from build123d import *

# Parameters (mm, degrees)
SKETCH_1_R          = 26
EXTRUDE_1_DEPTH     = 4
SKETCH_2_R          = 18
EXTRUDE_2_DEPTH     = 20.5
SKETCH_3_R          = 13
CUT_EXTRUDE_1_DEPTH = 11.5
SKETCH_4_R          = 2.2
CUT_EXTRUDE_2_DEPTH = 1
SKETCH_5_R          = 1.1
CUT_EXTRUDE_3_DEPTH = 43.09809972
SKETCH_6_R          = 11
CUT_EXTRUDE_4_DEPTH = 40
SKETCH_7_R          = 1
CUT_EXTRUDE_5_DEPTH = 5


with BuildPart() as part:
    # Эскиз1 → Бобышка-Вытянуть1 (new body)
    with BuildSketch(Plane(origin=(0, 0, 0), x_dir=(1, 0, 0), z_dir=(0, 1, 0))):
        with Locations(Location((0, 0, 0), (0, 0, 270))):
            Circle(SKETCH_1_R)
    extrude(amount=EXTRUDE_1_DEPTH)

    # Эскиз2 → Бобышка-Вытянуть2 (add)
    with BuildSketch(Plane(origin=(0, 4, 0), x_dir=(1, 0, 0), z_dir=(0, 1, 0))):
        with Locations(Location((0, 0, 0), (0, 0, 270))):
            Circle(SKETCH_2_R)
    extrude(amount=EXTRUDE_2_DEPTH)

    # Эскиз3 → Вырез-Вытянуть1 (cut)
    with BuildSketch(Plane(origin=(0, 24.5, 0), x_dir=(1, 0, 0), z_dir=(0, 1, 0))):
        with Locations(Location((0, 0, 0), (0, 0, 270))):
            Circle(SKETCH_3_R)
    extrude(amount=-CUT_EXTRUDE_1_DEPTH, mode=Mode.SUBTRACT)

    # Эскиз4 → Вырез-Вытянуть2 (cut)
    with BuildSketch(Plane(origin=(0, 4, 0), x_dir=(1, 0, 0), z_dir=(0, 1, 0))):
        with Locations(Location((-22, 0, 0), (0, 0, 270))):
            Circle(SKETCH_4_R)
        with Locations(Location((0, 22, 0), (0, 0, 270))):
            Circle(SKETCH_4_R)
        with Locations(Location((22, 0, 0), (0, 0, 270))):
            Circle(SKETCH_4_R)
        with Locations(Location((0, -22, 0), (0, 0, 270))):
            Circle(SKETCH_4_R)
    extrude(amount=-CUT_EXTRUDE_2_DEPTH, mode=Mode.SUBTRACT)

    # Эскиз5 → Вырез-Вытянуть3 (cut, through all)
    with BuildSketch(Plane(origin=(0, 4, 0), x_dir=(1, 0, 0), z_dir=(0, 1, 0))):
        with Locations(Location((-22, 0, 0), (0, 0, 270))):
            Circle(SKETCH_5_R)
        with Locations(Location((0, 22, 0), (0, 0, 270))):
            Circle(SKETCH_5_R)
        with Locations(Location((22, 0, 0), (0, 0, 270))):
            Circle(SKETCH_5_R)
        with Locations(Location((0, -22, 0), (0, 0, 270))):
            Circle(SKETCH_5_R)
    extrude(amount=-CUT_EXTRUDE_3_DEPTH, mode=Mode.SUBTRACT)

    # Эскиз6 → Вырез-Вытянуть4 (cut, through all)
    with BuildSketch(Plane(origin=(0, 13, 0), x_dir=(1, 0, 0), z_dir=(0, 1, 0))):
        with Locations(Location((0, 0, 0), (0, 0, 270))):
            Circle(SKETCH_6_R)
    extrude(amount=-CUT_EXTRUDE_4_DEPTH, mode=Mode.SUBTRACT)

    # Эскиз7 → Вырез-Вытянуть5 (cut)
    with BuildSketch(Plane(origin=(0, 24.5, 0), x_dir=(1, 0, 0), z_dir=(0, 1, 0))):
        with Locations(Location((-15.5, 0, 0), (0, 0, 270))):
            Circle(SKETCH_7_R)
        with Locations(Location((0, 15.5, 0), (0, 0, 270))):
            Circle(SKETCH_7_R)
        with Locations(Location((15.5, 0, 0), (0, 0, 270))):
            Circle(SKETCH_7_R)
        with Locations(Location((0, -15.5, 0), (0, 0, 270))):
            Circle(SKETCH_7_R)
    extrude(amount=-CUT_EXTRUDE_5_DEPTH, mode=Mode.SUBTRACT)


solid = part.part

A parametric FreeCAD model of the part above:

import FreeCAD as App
import Part
import Sketcher
from FreeCAD import Vector

doc = App.newDocument("Part")
body = doc.addObject("PartDesign::Body", "Body")

sketch1 = body.newObject("Sketcher::SketchObject", "Sketch")
sketch1.AttachmentSupport = (doc.getObject("XZ_Plane"), [""])
sketch1.MapMode = "FlatFace"
sketch1.addGeometry(Part.Circle(Vector(0, 0, 0), Vector(0, 0, 1), 26), False)
sketch1.addConstraint(Sketcher.Constraint("Coincident", 0, 3, -1, 1))
sketch1.addConstraint(Sketcher.Constraint("Diameter", 0, 52.0))
pad1 = body.newObject("PartDesign::Pad", "Pad")
pad1.Profile = sketch1
pad1.Length = 4
pad1.Reversed = True

sketch2 = body.newObject("Sketcher::SketchObject", "Sketch001")
sketch2.AttachmentSupport = (doc.getObject("XZ_Plane"), [""])
sketch2.MapMode = "FlatFace"
sketch2.AttachmentOffset = App.Placement(Vector(0, 0, -4), App.Rotation())
sketch2.addGeometry(Part.Circle(Vector(0, 0, 0), Vector(0, 0, 1), 18), False)
sketch2.addConstraint(Sketcher.Constraint("Coincident", 0, 3, -1, 1))
sketch2.addConstraint(Sketcher.Constraint("Diameter", 0, 36.0))
pad2 = body.newObject("PartDesign::Pad", "Pad001")
pad2.Profile = sketch2
pad2.Length = 20.5
pad2.Reversed = True

sketch3 = body.newObject("Sketcher::SketchObject", "Sketch002")
sketch3.AttachmentSupport = (doc.getObject("XZ_Plane"), [""])
sketch3.MapMode = "FlatFace"
sketch3.AttachmentOffset = App.Placement(Vector(0, 0, -24.5), App.Rotation())
sketch3.addGeometry(Part.Circle(Vector(0, 0, 0), Vector(0, 0, 1), 13), False)
sketch3.addConstraint(Sketcher.Constraint("Coincident", 0, 3, -1, 1))
sketch3.addConstraint(Sketcher.Constraint("Diameter", 0, 26.0))
pocket1 = body.newObject("PartDesign::Pocket", "Pocket")
pocket1.Profile = sketch3
pocket1.Length = 11.5
pocket1.Reversed = True

sketch4 = body.newObject("Sketcher::SketchObject", "Sketch003")
sketch4.AttachmentSupport = (doc.getObject("XZ_Plane"), [""])
sketch4.MapMode = "FlatFace"
sketch4.AttachmentOffset = App.Placement(Vector(0, 0, -4), App.Rotation())
sketch4.addGeometry(Part.Circle(Vector(-22, 0, 0), Vector(0, 0, 1), 2.2), False)
sketch4.addGeometry(Part.Circle(Vector(0, -22, 0), Vector(0, 0, 1), 2.2), False)
sketch4.addGeometry(Part.Circle(Vector(22, 0, 0), Vector(0, 0, 1), 2.2), False)
sketch4.addGeometry(Part.Circle(Vector(0, 22, 0), Vector(0, 0, 1), 2.2), False)
sketch4.addConstraint(Sketcher.Constraint("Equal", 0, 1))
sketch4.addConstraint(Sketcher.Constraint("Equal", 1, 2))
sketch4.addConstraint(Sketcher.Constraint("Equal", 2, 3))
sketch4.addConstraint(Sketcher.Constraint("Symmetric", 0, 3, 2, 3, -1, 1))
sketch4.addConstraint(Sketcher.Constraint("Symmetric", 1, 3, 3, 3, -1, 1))
sketch4.addConstraint(Sketcher.Constraint("PointOnObject", 0, 3, -1))
sketch4.addConstraint(Sketcher.Constraint("PointOnObject", 1, 3, -2))
sketch4.addConstraint(Sketcher.Constraint("Diameter", 0, 4.4))
sketch4.addConstraint(Sketcher.Constraint("DistanceX", 0, 3, -1, 1, 22.0))
sketch4.addConstraint(Sketcher.Constraint("DistanceY", 1, 3, -1, 1, 22.0))
pocket2 = body.newObject("PartDesign::Pocket", "Pocket001")
pocket2.Profile = sketch4
pocket2.Length = 1
pocket2.Reversed = True

sketch5 = body.newObject("Sketcher::SketchObject", "Sketch004")
sketch5.AttachmentSupport = (doc.getObject("XZ_Plane"), [""])
sketch5.MapMode = "FlatFace"
sketch5.AttachmentOffset = App.Placement(Vector(0, 0, -4), App.Rotation())
sketch5.addGeometry(Part.Circle(Vector(-22, 0, 0), Vector(0, 0, 1), 1.1), False)
sketch5.addGeometry(Part.Circle(Vector(0, -22, 0), Vector(0, 0, 1), 1.1), False)
sketch5.addGeometry(Part.Circle(Vector(22, 0, 0), Vector(0, 0, 1), 1.1), False)
sketch5.addGeometry(Part.Circle(Vector(0, 22, 0), Vector(0, 0, 1), 1.1), False)
sketch5.addConstraint(Sketcher.Constraint("Equal", 0, 1))
sketch5.addConstraint(Sketcher.Constraint("Equal", 1, 2))
sketch5.addConstraint(Sketcher.Constraint("Equal", 2, 3))
sketch5.addConstraint(Sketcher.Constraint("Symmetric", 0, 3, 2, 3, -1, 1))
sketch5.addConstraint(Sketcher.Constraint("Symmetric", 1, 3, 3, 3, -1, 1))
sketch5.addConstraint(Sketcher.Constraint("PointOnObject", 0, 3, -1))
sketch5.addConstraint(Sketcher.Constraint("PointOnObject", 1, 3, -2))
sketch5.addConstraint(Sketcher.Constraint("Diameter", 0, 2.2))
sketch5.addConstraint(Sketcher.Constraint("DistanceX", 0, 3, -1, 1, 22.0))
sketch5.addConstraint(Sketcher.Constraint("DistanceY", 1, 3, -1, 1, 22.0))
pocket3 = body.newObject("PartDesign::Pocket", "Pocket002")
pocket3.Profile = sketch5
pocket3.Type = "ThroughAll"
pocket3.Reversed = True

sketch6 = body.newObject("Sketcher::SketchObject", "Sketch005")
sketch6.AttachmentSupport = (doc.getObject("XZ_Plane"), [""])
sketch6.MapMode = "FlatFace"
sketch6.AttachmentOffset = App.Placement(Vector(0, 0, -13), App.Rotation())
sketch6.addGeometry(Part.Circle(Vector(0, 0, 0), Vector(0, 0, 1), 11), False)
sketch6.addConstraint(Sketcher.Constraint("Coincident", 0, 3, -1, 1))
sketch6.addConstraint(Sketcher.Constraint("Diameter", 0, 22.0))
pocket4 = body.newObject("PartDesign::Pocket", "Pocket003")
pocket4.Profile = sketch6
pocket4.Type = "ThroughAll"
pocket4.Reversed = True

sketch7 = body.newObject("Sketcher::SketchObject", "Sketch006")
sketch7.AttachmentSupport = (doc.getObject("XZ_Plane"), [""])
sketch7.MapMode = "FlatFace"
sketch7.AttachmentOffset = App.Placement(Vector(0, 0, -24.5), App.Rotation())
sketch7.addGeometry(Part.Circle(Vector(-15.5, 0, 0), Vector(0, 0, 1), 1), False)
sketch7.addGeometry(Part.Circle(Vector(0, -15.5, 0), Vector(0, 0, 1), 1), False)
sketch7.addGeometry(Part.Circle(Vector(15.5, 0, 0), Vector(0, 0, 1), 1), False)
sketch7.addGeometry(Part.Circle(Vector(0, 15.5, 0), Vector(0, 0, 1), 1), False)
sketch7.addConstraint(Sketcher.Constraint("Equal", 0, 1))
sketch7.addConstraint(Sketcher.Constraint("Equal", 1, 2))
sketch7.addConstraint(Sketcher.Constraint("Equal", 2, 3))
sketch7.addConstraint(Sketcher.Constraint("Symmetric", 0, 3, 2, 3, -1, 1))
sketch7.addConstraint(Sketcher.Constraint("Symmetric", 1, 3, 3, 3, -1, 1))
sketch7.addConstraint(Sketcher.Constraint("PointOnObject", 0, 3, -1))
sketch7.addConstraint(Sketcher.Constraint("PointOnObject", 1, 3, -2))
sketch7.addConstraint(Sketcher.Constraint("Diameter", 0, 2.0))
sketch7.addConstraint(Sketcher.Constraint("DistanceX", 0, 3, 2, 3, 31.0))
sketch7.addConstraint(Sketcher.Constraint("DistanceY", 1, 3, 3, 3, 31.0))
pocket5 = body.newObject("PartDesign::Pocket", "Pocket004")
pocket5.Profile = sketch7
pocket5.Length = 5
pocket5.Reversed = True

doc.recompute()
